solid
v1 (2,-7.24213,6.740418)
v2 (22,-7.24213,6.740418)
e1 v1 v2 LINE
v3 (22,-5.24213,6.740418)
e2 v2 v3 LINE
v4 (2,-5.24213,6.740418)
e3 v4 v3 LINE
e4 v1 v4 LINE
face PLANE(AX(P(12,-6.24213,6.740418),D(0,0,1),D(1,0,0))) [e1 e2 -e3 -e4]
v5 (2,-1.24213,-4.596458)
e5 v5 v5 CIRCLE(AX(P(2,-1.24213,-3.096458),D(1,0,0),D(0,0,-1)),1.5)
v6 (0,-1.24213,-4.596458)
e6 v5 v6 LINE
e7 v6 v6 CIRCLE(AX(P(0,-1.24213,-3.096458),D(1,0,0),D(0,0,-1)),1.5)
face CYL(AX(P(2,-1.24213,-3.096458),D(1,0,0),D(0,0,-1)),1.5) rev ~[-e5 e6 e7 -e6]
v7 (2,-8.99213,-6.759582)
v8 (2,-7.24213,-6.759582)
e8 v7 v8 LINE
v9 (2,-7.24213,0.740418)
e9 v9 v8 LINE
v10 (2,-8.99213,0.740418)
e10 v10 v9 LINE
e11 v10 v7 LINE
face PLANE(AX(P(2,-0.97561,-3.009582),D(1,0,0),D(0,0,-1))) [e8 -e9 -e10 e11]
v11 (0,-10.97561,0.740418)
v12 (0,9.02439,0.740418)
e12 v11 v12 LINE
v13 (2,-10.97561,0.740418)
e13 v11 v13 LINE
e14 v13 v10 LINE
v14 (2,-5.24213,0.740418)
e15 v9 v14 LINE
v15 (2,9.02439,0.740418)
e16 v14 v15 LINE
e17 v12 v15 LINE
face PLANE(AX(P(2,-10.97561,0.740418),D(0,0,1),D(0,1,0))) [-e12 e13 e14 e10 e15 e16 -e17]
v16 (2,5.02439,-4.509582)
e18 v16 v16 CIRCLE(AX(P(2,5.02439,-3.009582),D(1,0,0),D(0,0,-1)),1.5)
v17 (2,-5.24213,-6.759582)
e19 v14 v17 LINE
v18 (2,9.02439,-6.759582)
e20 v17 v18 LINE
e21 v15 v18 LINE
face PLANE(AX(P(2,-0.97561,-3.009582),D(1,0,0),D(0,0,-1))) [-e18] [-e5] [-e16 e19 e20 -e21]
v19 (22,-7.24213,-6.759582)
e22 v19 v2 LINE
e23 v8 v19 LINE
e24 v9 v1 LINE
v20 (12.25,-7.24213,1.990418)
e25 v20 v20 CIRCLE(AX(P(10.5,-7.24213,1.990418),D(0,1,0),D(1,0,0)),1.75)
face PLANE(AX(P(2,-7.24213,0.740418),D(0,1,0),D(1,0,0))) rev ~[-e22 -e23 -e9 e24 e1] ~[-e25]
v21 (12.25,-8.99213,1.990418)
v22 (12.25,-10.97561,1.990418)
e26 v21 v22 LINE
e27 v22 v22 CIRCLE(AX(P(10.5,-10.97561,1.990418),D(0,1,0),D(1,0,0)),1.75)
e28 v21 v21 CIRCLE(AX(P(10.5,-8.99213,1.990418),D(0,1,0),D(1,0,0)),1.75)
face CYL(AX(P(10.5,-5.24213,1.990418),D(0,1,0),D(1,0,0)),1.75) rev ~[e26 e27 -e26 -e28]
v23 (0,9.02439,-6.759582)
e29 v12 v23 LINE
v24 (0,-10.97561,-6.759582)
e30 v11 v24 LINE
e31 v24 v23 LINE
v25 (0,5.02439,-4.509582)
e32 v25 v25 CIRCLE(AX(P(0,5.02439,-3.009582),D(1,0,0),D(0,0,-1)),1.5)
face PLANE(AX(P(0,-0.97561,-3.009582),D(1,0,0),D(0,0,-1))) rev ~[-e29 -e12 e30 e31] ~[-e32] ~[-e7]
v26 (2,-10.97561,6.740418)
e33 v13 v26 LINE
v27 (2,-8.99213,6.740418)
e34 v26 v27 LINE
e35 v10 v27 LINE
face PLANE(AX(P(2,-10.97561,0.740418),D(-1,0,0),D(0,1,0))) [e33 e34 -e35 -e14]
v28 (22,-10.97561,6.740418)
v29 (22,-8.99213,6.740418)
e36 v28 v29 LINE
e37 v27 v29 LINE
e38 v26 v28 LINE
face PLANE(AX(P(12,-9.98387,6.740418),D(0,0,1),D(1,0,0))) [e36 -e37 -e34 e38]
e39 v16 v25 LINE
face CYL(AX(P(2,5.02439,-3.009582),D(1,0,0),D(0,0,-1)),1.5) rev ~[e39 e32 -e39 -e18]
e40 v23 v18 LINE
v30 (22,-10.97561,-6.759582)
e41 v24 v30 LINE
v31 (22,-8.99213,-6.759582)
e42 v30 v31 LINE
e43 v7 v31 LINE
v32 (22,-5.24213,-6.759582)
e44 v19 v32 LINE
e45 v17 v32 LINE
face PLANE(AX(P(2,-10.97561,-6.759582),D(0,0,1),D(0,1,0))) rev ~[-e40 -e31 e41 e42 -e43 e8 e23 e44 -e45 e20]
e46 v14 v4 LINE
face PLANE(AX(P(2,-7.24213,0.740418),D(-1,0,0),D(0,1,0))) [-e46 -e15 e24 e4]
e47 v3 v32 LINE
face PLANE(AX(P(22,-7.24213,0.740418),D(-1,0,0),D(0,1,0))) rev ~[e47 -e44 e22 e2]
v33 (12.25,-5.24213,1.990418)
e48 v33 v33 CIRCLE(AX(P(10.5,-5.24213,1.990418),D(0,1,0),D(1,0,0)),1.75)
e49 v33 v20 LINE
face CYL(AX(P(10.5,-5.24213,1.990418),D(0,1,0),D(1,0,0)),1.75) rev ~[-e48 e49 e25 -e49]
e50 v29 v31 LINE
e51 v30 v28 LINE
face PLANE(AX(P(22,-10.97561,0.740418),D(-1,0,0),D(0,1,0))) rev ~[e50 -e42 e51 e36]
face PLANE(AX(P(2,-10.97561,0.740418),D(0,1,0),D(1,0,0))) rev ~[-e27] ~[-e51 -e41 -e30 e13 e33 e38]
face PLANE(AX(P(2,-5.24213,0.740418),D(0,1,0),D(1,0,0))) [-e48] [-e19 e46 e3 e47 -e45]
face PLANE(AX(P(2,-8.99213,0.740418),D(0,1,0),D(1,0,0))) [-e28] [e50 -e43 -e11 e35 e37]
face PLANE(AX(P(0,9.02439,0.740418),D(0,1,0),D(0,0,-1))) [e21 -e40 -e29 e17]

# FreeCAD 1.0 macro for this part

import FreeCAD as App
import Part
import Sketcher

doc = App.newDocument("Part")
body = doc.addObject("PartDesign::Body", "Body")

# Sketch on YZ plane
sketch1 = doc.addObject("Sketcher::SketchObject", "Sketch")
body.addObject(sketch1)
sketch1.AttachmentSupport = (doc.YZ_Plane, [""])
sketch1.MapMode = "FlatFace"
sketch1.addGeometry([
    Part.LineSegment(App.Vector(9, 1, 0), App.Vector(-11, 1, 0)),
    Part.LineSegment(App.Vector(-11, 1, 0), App.Vector(-11, -7, 0)),
    Part.LineSegment(App.Vector(-11, -7, 0), App.Vector(9, -7, 0)),
    Part.LineSegment(App.Vector(9, -7, 0), App.Vector(9, 1, 0)),
], False)
sketch1.addConstraint([
    Sketcher.Constraint("Coincident", 0, 2, 1, 1),
    Sketcher.Constraint("Coincident", 1, 2, 2, 1),
    Sketcher.Constraint("Coincident", 2, 2, 3, 1),
    Sketcher.Constraint("Coincident", 3, 2, 0, 1),
    Sketcher.Constraint("Horizontal", 0),
    Sketcher.Constraint("Vertical", 1),
    Sketcher.Constraint("Horizontal", 2),
    Sketcher.Constraint("Vertical", 3),
    Sketcher.Constraint("DistanceX", 0, 2, 0, 1, 20.0),
    Sketcher.Constraint("DistanceY", 1, 2, 1, 1, 7.5),
    Sketcher.Constraint("DistanceX", 0, 2, -1, 1, 10.97561),
    Sketcher.Constraint("DistanceY", -1, 1, 0, 2, 0.740418),
])
pad1 = doc.addObject("PartDesign::Pad", "Pad")
body.addObject(pad1)
pad1.Profile = sketch1
pad1.Length = 2

# Sketch on YZ plane
sketch2 = doc.addObject("Sketcher::SketchObject", "Sketch001")
body.addObject(sketch2)
sketch2.AttachmentSupport = (doc.YZ_Plane, [""])
sketch2.MapMode = "FlatFace"
sketch2.AttachmentOffset = App.Placement(App.Vector(0, 0, 2), App.Rotation())
sketch2.addGeometry([
    Part.LineSegment(App.Vector(-9, 0.7, 0), App.Vector(-11, 0.7, 0)),
    Part.LineSegment(App.Vector(-11, 0.7, 0), App.Vector(-11, -6.8, 0)),
    Part.LineSegment(App.Vector(-11, -6.8, 0), App.Vector(-9, -6.8, 0)),
    Part.LineSegment(App.Vector(-9, -6.8, 0), App.Vector(-9, 0.7, 0)),
], False)
sketch2.addConstraint([
    Sketcher.Constraint("Coincident", 0, 2, 1, 1),
    Sketcher.Constraint("Coincident", 1, 2, 2, 1),
    Sketcher.Constraint("Coincident", 2, 2, 3, 1),
    Sketcher.Constraint("Coincident", 3, 2, 0, 1),
    Sketcher.Constraint("Horizontal", 0),
    Sketcher.Constraint("Vertical", 1),
    Sketcher.Constraint("Horizontal", 2),
    Sketcher.Constraint("Vertical", 3),
    Sketcher.Constraint("DistanceY", 1, 2, 1, 1, 7.5),
    Sketcher.Constraint("DistanceX", 0, 2, 0, 1, 1.983479),
    Sketcher.Constraint("DistanceX", 0, 2, -1, 1, 10.97561),
    Sketcher.Constraint("DistanceY", -1, 1, 0, 2, 0.740418),
])
pad2 = doc.addObject("PartDesign::Pad", "Pad001")
body.addObject(pad2)
pad2.Profile = sketch2
pad2.Length = 20

# Sketch on YZ plane
sketch3 = doc.addObject("Sketcher::SketchObject", "Sketch002")
body.addObject(sketch3)
sketch3.AttachmentSupport = (doc.YZ_Plane, [""])
sketch3.MapMode = "FlatFace"
sketch3.AttachmentOffset = App.Placement(App.Vector(0, 0, 2), App.Rotation())
sketch3.addGeometry([
    Part.LineSegment(App.Vector(-5.2, 0.7, 0), App.Vector(-7.2, 0.7, 0)),
    Part.LineSegment(App.Vector(-7.2, 0.7, 0), App.Vector(-7.2, -6.8, 0)),
    Part.LineSegment(App.Vector(-7.2, -6.8, 0), App.Vector(-5.2, -6.8, 0)),
    Part.LineSegment(App.Vector(-5.2, -6.8, 0), App.Vector(-5.2, 0.7, 0)),
], False)
sketch3.addConstraint([
    Sketcher.Constraint("Coincident", 0, 2, 1, 1),
    Sketcher.Constraint("Coincident", 1, 2, 2, 1),
    Sketcher.Constraint("Coincident", 2, 2, 3, 1),
    Sketcher.Constraint("Coincident", 3, 2, 0, 1),
    Sketcher.Constraint("Horizontal", 0),
    Sketcher.Constraint("Vertical", 1),
    Sketcher.Constraint("Horizontal", 2),
    Sketcher.Constraint("Vertical", 3),
    Sketcher.Constraint("DistanceX", 0, 2, 0, 1, 2.0),
    Sketcher.Constraint("DistanceY", 1, 2, 1, 1, 7.5),
    Sketcher.Constraint("DistanceX", 0, 2, -1, 1, 7.24213),
    Sketcher.Constraint("DistanceY", -1, 1, 0, 2, 0.740418),
])
pad3 = doc.addObject("PartDesign::Pad", "Pad002")
body.addObject(pad3)
pad3.Profile = sketch3
pad3.Length = 20

# Sketch on YZ plane
sketch4 = doc.addObject("Sketcher::SketchObject", "Sketch003")
body.addObject(sketch4)
sketch4.AttachmentSupport = (doc.YZ_Plane, [""])
sketch4.MapMode = "FlatFace"
sketch4.AttachmentOffset = App.Placement(App.Vector(0, 0, 2), App.Rotation())
sketch4.addGeometry([
    Part.Circle(App.Vector(5, -3, 0), App.Vector(0, 0, 1), 1.5),
    Part.Circle(App.Vector(-1.2, -3.1, 0), App.Vector(0, 0, 1), 1.5),
], False)
sketch4.addConstraint([
    Sketcher.Constraint("Equal", 0, 1),
    Sketcher.Constraint("Diameter", 0, 3.0),
    Sketcher.Constraint("DistanceX", -1, 1, 0, 3, 5.02439),
    Sketcher.Constraint("DistanceY", 0, 3, -1, 1, 3.009582),
    Sketcher.Constraint("DistanceX", 1, 3, -1, 1, 1.24213),
    Sketcher.Constraint("DistanceY", 1, 3, -1, 1, 3.096458),
])
pocket1 = doc.addObject("PartDesign::Pocket", "Pocket")
body.addObject(pocket1)
pocket1.Profile = sketch4
pocket1.Length = 20

# Sketch on XY plane
sketch5 = doc.addObject("Sketcher::SketchObject", "Sketch004")
body.addObject(sketch5)
sketch5.AttachmentSupport = (doc.XY_Plane, [""])
sketch5.MapMode = "FlatFace"
sketch5.AttachmentOffset = App.Placement(App.Vector(0, 0, 0.740418), App.Rotation())
sketch5.addGeometry([
    Part.LineSegment(App.Vector(2, -5.2, 0), App.Vector(2, -7.2, 0)),
    Part.LineSegment(App.Vector(2, -7.2, 0), App.Vector(22, -7.2, 0)),
    Part.LineSegment(App.Vector(22, -7.2, 0), App.Vector(22, -5.2, 0)),
    Part.LineSegment(App.Vector(22, -5.2, 0), App.Vector(2, -5.2, 0)),
], False)
sketch5.addConstraint([
    Sketcher.Constraint("Coincident", 0, 2, 1, 1),
    Sketcher.Constraint("Coincident", 1, 2, 2, 1),
    Sketcher.Constraint("Coincident", 2, 2, 3, 1),
    Sketcher.Constraint("Coincident", 3, 2, 0, 1),
    Sketcher.Constraint("Vertical", 0),
    Sketcher.Constraint("Horizontal", 1),
    Sketcher.Constraint("Vertical", 2),
    Sketcher.Constraint("Horizontal", 3),
    Sketcher.Constraint("DistanceX", 1, 1, 1, 2, 20.0),
    Sketcher.Constraint("DistanceY", 0, 2, 0, 1, 2.0),
    Sketcher.Constraint("DistanceX", -1, 1, 0, 2, 2.0),
    Sketcher.Constraint("DistanceY", 0, 2, -1, 1, 7.24213),
])
pad4 = doc.addObject("PartDesign::Pad", "Pad003")
body.addObject(pad4)
pad4.Profile = sketch5
pad4.Length = 6

# Sketch on XY plane
sketch6 = doc.addObject("Sketcher::SketchObject", "Sketch005")
body.addObject(sketch6)
sketch6.AttachmentSupport = (doc.XY_Plane, [""])
sketch6.MapMode = "FlatFace"
sketch6.AttachmentOffset = App.Placement(App.Vector(0, 0, 0.740418), App.Rotation())
sketch6.addGeometry([
    Part.LineSegment(App.Vector(2, -9, 0), App.Vector(2, -11, 0)),
    Part.LineSegment(App.Vector(2, -11, 0), App.Vector(22, -11, 0)),
    Part.LineSegment(App.Vector(22, -11, 0), App.Vector(22, -9, 0)),
    Part.LineSegment(App.Vector(22, -9, 0), App.Vector(2, -9, 0)),
], False)
sketch6.addConstraint([
    Sketcher.Constraint("Coincident", 0, 2, 1, 1),
    Sketcher.Constraint("Coincident", 1, 2, 2, 1),
    Sketcher.Constraint("Coincident", 2, 2, 3, 1),
    Sketcher.Constraint("Coincident", 3, 2, 0, 1),
    Sketcher.Constraint("Vertical", 0),
    Sketcher.Constraint("Horizontal", 1),
    Sketcher.Constraint("Vertical", 2),
    Sketcher.Constraint("Horizontal", 3),
    Sketcher.Constraint("DistanceX", 1, 1, 1, 2, 20.0),
    Sketcher.Constraint("DistanceX", -1, 1, 0, 2, 2.0),
    Sketcher.Constraint("DistanceY", 0, 2, 0, 1, 1.983479),
    Sketcher.Constraint("DistanceY", 0, 2, -1, 1, 10.97561),
])
pad5 = doc.addObject("PartDesign::Pad", "Pad004")
body.addObject(pad5)
pad5.Profile = sketch6
pad5.Length = 6

# Sketch on XZ plane
sketch7 = doc.addObject("Sketcher::SketchObject", "Sketch006")
body.addObject(sketch7)
sketch7.AttachmentSupport = (doc.XZ_Plane, [""])
sketch7.MapMode = "FlatFace"
sketch7.AttachmentOffset = App.Placement(App.Vector(0, 0, 5.24213), App.Rotation())
sketch7.addGeometry(Part.Circle(App.Vector(10.5, 2, 0), App.Vector(0, 0, 1), 1.8), False)
sketch7.addConstraint([
    Sketcher.Constraint("Diameter", 0, 3.5),
    Sketcher.Constraint("DistanceX", -1, 1, 0, 3, 10.5),
    Sketcher.Constraint("DistanceY", -1, 1, 0, 3, 1.990418),
])
pocket2 = doc.addObject("PartDesign::Pocket", "Pocket001")
body.addObject(pocket2)
pocket2.Profile = sketch7
pocket2.Length = 6
pocket2.Reversed = True

doc.recompute()
